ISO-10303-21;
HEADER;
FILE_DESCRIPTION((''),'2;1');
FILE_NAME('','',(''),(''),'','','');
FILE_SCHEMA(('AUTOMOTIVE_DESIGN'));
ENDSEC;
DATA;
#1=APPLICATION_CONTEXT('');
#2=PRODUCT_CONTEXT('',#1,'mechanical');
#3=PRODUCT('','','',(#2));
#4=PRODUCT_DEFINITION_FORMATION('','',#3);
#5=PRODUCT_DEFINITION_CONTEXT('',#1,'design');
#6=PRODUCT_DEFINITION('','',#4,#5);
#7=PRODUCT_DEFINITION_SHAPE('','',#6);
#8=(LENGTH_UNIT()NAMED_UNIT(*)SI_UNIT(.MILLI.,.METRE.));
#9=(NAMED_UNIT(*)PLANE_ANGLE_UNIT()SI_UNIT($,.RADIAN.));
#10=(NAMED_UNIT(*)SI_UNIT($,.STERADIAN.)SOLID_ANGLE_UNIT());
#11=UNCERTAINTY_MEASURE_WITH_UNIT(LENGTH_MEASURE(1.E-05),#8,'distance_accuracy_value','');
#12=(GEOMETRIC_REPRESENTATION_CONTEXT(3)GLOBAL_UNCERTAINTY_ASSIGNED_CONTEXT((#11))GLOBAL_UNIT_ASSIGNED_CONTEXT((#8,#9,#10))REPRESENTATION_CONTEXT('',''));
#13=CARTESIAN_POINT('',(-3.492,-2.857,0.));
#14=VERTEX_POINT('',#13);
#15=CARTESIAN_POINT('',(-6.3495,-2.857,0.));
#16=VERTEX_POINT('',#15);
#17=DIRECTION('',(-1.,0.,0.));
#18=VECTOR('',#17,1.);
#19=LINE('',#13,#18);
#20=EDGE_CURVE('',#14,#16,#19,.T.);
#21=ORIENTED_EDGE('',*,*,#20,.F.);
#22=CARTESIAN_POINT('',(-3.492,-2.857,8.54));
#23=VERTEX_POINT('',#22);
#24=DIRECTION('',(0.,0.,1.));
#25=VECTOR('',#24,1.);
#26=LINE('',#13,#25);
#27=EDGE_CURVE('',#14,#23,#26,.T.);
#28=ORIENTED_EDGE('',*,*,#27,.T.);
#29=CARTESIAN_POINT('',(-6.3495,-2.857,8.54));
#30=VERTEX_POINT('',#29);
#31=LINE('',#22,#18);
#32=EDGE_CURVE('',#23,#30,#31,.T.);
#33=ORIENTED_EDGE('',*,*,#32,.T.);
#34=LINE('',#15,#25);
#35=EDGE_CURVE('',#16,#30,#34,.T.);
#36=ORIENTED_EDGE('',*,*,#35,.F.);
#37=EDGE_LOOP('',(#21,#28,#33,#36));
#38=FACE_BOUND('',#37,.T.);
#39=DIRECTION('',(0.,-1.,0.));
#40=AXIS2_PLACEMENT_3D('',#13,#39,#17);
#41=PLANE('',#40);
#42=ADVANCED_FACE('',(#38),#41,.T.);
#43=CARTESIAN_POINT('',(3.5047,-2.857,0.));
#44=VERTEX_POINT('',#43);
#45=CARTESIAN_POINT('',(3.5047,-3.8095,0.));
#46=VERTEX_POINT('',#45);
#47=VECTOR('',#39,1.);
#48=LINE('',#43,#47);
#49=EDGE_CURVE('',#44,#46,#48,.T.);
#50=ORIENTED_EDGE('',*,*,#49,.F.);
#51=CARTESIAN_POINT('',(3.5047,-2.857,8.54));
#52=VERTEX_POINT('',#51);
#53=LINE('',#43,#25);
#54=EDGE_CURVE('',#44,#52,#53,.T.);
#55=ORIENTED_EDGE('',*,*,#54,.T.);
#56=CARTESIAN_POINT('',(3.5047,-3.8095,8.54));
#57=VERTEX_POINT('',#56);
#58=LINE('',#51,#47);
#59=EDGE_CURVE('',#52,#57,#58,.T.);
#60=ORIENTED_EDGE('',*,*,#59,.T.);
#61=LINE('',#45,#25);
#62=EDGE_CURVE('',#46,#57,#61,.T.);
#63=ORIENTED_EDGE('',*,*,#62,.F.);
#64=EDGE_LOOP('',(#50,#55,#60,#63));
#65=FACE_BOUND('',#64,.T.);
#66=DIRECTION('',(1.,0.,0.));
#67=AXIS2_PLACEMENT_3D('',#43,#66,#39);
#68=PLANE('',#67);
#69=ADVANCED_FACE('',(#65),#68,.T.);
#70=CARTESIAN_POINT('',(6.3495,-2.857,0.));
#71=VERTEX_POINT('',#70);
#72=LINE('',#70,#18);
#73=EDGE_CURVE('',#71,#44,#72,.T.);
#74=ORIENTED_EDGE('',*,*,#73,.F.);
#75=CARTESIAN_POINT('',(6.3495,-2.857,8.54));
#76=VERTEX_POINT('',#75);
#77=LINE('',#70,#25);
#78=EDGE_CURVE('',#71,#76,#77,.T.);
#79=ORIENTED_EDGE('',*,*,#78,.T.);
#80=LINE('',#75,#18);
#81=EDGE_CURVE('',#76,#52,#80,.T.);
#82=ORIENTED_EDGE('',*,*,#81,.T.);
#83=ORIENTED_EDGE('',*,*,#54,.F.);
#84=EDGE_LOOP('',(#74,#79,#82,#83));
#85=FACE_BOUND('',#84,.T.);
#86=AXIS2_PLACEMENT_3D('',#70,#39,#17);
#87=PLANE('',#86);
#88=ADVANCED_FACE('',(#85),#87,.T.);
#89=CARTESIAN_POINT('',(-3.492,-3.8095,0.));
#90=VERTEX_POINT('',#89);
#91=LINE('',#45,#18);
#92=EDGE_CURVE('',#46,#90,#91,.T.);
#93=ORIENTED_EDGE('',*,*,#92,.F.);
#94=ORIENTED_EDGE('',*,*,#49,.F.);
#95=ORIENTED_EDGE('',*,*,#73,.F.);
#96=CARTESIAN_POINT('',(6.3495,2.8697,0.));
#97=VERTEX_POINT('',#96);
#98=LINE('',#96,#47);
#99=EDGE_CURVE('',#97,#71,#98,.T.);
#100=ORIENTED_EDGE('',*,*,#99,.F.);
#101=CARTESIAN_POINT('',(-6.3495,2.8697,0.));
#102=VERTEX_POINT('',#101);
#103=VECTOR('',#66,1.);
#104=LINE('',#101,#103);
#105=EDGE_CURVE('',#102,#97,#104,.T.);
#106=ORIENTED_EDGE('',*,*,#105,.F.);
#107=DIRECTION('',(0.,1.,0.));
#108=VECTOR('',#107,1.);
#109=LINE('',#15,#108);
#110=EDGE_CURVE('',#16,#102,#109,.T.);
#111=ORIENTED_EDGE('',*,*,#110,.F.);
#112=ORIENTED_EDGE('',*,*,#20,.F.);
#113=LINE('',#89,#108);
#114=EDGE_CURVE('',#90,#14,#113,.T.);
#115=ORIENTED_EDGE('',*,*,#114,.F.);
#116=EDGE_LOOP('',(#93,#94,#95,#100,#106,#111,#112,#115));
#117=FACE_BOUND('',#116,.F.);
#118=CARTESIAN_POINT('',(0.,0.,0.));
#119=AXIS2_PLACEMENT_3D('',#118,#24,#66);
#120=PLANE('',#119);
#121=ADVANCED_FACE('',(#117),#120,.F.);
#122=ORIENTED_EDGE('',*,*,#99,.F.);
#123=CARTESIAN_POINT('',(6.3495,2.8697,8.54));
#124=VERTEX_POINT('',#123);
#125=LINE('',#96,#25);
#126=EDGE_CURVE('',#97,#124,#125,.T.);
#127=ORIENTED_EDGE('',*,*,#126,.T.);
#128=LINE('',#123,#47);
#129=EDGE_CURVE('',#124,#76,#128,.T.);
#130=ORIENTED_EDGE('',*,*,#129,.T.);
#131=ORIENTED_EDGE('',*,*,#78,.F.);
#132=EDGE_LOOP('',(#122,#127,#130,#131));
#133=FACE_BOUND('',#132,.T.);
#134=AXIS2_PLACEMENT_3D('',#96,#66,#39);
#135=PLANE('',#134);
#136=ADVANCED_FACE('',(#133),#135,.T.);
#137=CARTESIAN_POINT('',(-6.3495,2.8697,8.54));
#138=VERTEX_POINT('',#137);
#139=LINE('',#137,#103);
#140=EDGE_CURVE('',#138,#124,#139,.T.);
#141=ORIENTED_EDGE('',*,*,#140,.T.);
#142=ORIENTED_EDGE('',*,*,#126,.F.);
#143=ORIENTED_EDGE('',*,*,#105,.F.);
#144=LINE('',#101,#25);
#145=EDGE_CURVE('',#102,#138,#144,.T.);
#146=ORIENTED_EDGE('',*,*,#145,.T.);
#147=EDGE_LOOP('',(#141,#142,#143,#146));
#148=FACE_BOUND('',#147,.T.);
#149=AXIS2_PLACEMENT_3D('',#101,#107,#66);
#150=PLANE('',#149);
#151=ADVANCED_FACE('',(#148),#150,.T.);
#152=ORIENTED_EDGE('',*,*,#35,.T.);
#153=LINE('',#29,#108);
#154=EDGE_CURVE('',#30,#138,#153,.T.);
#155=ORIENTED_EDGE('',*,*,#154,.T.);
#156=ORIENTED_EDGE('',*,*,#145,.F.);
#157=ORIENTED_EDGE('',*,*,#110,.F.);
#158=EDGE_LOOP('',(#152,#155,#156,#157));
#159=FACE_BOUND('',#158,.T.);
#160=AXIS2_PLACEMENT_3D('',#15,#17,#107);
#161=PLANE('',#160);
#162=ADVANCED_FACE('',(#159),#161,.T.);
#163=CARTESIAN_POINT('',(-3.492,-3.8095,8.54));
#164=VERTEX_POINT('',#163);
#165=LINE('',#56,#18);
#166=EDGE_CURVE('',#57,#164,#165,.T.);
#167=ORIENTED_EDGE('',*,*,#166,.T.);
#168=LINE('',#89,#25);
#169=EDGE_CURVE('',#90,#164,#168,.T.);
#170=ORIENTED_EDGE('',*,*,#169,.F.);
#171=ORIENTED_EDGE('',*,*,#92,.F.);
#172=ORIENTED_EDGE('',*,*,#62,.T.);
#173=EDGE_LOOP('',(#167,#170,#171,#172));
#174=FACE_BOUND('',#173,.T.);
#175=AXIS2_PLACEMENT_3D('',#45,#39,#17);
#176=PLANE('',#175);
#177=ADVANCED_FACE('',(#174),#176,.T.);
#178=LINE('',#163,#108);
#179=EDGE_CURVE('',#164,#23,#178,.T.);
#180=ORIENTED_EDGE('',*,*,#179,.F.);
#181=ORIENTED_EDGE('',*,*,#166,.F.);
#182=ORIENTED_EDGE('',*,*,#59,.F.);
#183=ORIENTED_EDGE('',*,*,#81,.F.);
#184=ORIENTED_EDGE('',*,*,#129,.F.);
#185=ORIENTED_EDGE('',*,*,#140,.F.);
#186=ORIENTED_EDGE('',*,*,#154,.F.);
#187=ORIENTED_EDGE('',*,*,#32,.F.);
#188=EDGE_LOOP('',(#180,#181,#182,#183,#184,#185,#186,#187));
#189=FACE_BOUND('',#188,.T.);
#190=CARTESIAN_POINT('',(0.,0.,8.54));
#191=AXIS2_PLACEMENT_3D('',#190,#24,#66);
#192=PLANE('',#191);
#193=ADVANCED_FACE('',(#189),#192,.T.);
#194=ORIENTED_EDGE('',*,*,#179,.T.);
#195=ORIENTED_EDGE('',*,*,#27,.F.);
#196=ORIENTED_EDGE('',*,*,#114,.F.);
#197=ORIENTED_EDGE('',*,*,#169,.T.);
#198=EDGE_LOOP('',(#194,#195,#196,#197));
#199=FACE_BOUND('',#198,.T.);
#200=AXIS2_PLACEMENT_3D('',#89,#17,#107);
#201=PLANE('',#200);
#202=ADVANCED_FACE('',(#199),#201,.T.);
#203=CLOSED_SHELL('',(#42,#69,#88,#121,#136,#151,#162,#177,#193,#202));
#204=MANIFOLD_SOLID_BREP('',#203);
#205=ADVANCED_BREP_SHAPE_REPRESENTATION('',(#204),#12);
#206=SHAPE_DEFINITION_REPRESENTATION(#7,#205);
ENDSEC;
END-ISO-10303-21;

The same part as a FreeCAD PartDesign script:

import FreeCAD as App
import Part
import Sketcher

V = App.Vector
Q = App.Units.Quantity

doc = App.newDocument("Part")
body = doc.addObject("PartDesign::Body", "Body")

sketch1 = doc.addObject("Sketcher::SketchObject", "Sketch")
body.addObject(sketch1)
sketch1.AttachmentSupport = (doc.XY_Plane, [""])
sketch1.MapMode = "FlatFace"
sketch1.addGeometry([
    Part.LineSegment(V(-6.3, -2.9, 0), V(-3.5, -2.9, 0)),
    Part.LineSegment(V(-3.5, -2.9, 0), V(-3.5, -3.8, 0)),
    Part.LineSegment(V(-3.5, -3.8, 0), V(3.5, -3.8, 0)),
    Part.LineSegment(V(3.5, -3.8, 0), V(3.5, -2.9, 0)),
    Part.LineSegment(V(3.5, -2.9, 0), V(6.3, -2.9, 0)),
    Part.LineSegment(V(6.3, -2.9, 0), V(6.3, 2.9, 0)),
    Part.LineSegment(V(6.3, 2.9, 0), V(-6.3, 2.9, 0)),
    Part.LineSegment(V(-6.3, 2.9, 0), V(-6.3, -2.9, 0)),
], False)
sketch1.addConstraint([
    Sketcher.Constraint("Coincident", 0, 2, 1, 1),
    Sketcher.Constraint("Coincident", 1, 2, 2, 1),
    Sketcher.Constraint("Coincident", 2, 2, 3, 1),
    Sketcher.Constraint("Coincident", 3, 2, 4, 1),
    Sketcher.Constraint("Coincident", 4, 2, 5, 1),
    Sketcher.Constraint("Coincident", 5, 2, 6, 1),
    Sketcher.Constraint("Coincident", 6, 2, 7, 1),
    Sketcher.Constraint("Coincident", 7, 2, 0, 1),
    Sketcher.Constraint("Horizontal", 0),
    Sketcher.Constraint("Vertical", 1),
    Sketcher.Constraint("Horizontal", 2),
    Sketcher.Constraint("Vertical", 3),
    Sketcher.Constraint("Horizontal", 4),
    Sketcher.Constraint("Vertical", 5),
    Sketcher.Constraint("Horizontal", 6),
    Sketcher.Constraint("Vertical", 7),
    Sketcher.Constraint("Symmetric", 4, 2, 7, 2, -2),
    Sketcher.Constraint("DistanceX", 4, 1, 4, 2, Q("0.112 in")),
    Sketcher.Constraint("DistanceX", 0, 1, 0, 2, Q("0.1125 in")),
    Sketcher.Constraint("DistanceY", 1, 2, 1, 1, Q("0.0375 in")),
    Sketcher.Constraint("DistanceX", 2, 1, 2, 2, Q("6.9967 mm")),
    Sketcher.Constraint("DistanceY", 5, 1, 5, 2, Q("5.7267 mm")),
    Sketcher.Constraint("DistanceY", 0, 2, -1, 1, Q("2.857 mm")),
])
pad1 = doc.addObject("PartDesign::Pad", "Pad")
body.addObject(pad1)
pad1.Profile = sketch1
pad1.Length = 8.54

doc.recompute()
